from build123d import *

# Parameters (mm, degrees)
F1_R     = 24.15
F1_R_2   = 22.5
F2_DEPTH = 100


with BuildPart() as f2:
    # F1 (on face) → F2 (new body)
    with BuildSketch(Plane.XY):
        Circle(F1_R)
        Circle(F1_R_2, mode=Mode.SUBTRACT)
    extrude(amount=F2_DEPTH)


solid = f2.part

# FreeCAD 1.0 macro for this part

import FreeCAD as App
import Part
import Sketcher

V = App.Vector
Q = App.Units.Quantity

doc = App.newDocument("Part")
body = doc.addObject("PartDesign::Body", "Body")

# Sketch on XY plane
sketch1 = body.newObject("Sketcher::SketchObject", "Sketch")
sketch1.AttachmentSupport = (doc.getObject("XY_Plane"), [""])
sketch1.MapMode = "FlatFace"
sketch1.addGeometry([
    Part.Circle(V(0, 0, 0), V(0, 0, 1), 24),
    Part.Circle(V(0, 0, 0), V(0, 0, 1), 22),
], False)
sketch1.addConstraint([
    Sketcher.Constraint("Coincident", 0, 3, -1, 1),
    Sketcher.Constraint("Coincident", 1, 3, -1, 1),
    Sketcher.Constraint("Diameter", 1, Q("45 mm")),
    Sketcher.Constraint("Diameter", 0, Q("48.3 mm")),
])
pad1 = body.newObject("PartDesign::Pad", "Pad")
pad1.Profile = sketch1
pad1.Length = 100

doc.recompute()
